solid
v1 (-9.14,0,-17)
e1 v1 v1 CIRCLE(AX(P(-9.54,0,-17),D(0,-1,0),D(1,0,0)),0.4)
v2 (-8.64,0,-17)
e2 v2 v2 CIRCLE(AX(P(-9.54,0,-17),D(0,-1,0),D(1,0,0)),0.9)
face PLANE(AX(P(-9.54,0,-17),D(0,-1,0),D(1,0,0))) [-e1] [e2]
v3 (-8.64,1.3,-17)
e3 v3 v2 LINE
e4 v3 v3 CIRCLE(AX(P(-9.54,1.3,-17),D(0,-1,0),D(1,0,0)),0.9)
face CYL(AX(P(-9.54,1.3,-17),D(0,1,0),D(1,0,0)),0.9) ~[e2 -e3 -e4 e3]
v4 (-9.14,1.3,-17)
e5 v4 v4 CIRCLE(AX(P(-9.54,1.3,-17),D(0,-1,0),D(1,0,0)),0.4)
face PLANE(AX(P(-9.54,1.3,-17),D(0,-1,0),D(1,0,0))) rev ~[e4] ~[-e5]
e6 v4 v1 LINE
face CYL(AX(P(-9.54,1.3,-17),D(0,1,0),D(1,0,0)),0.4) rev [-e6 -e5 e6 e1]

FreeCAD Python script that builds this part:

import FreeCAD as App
import Part
import Sketcher

doc = App.newDocument("Part")
params = doc.addObject("Spreadsheet::Sheet", "Params")
for row, (alias, value) in enumerate([
    ("sketch1_diameter", "0.8 mm"),
    ("pad1_length", "1.3 mm"),
    ("sketch2_diameter", "1.8 mm"),
    ("pad2_length", "1.3 mm"),
], start=1):
    params.set(f"A{row}", alias)
    params.set(f"B{row}", "=" + value)
    params.setAlias(f"B{row}", alias)

body = doc.addObject("PartDesign::Body", "Body")

# Sketch on XY plane
sketch1 = body.newObject("Sketcher::SketchObject", "Sketch")
sketch1.AttachmentSupport = (doc.getObject("XY_Plane"), [""])
sketch1.MapMode = "FlatFace"
sketch1.addGeometry(Part.Circle(App.Vector(0, 0, 0), App.Vector(0, 0, 1), 0.4), False)
sketch1.addConstraint([
    Sketcher.Constraint("Coincident", 0, 3, -1, 1),
    Sketcher.Constraint("Diameter", 0, 0.8),
])
sketch1.setExpression("Constraints[1]", "Params.sketch1_diameter")
pad1 = body.newObject("PartDesign::Pad", "Pad")
pad1.Profile = sketch1
pad1.setExpression("Length", "Params.pad1_length")
body2 = doc.addObject("PartDesign::Body", "Body001")

# Sketch on XY plane
sketch2 = body2.newObject("Sketcher::SketchObject", "Sketch001")
sketch2.AttachmentSupport = (doc.getObject("XY_Plane001"), [""])
sketch2.MapMode = "FlatFace"
sketch2.addGeometry(Part.Circle(App.Vector(0, 0, 0), App.Vector(0, 0, 1), 0.9), False)
sketch2.addConstraint([
    Sketcher.Constraint("Coincident", 0, 3, -1, 1),
    Sketcher.Constraint("Diameter", 0, 1.8),
])
sketch2.setExpression("Constraints[1]", "Params.sketch2_diameter")
pad2 = body2.newObject("PartDesign::Pad", "Pad001")
pad2.Profile = sketch2
pad2.setExpression("Length", "Params.pad2_length")
doc.recompute()

boolean = body2.newObject("PartDesign::Boolean", "Boolean")
boolean.Type = "Cut"
boolean.addObjects([body])
body3 = doc.addObject("PartDesign::Body", "Body002")
doc.recompute()

body2.Placement = App.Placement(App.Vector(-9.54, 1.3, -17), App.Rotation(App.Vector(1, 0, 0), 90))
boolean2 = body3.newObject("PartDesign::Boolean", "Boolean001")
boolean2.Type = "Fuse"
boolean2.addObjects([body2])

doc.recompute()
